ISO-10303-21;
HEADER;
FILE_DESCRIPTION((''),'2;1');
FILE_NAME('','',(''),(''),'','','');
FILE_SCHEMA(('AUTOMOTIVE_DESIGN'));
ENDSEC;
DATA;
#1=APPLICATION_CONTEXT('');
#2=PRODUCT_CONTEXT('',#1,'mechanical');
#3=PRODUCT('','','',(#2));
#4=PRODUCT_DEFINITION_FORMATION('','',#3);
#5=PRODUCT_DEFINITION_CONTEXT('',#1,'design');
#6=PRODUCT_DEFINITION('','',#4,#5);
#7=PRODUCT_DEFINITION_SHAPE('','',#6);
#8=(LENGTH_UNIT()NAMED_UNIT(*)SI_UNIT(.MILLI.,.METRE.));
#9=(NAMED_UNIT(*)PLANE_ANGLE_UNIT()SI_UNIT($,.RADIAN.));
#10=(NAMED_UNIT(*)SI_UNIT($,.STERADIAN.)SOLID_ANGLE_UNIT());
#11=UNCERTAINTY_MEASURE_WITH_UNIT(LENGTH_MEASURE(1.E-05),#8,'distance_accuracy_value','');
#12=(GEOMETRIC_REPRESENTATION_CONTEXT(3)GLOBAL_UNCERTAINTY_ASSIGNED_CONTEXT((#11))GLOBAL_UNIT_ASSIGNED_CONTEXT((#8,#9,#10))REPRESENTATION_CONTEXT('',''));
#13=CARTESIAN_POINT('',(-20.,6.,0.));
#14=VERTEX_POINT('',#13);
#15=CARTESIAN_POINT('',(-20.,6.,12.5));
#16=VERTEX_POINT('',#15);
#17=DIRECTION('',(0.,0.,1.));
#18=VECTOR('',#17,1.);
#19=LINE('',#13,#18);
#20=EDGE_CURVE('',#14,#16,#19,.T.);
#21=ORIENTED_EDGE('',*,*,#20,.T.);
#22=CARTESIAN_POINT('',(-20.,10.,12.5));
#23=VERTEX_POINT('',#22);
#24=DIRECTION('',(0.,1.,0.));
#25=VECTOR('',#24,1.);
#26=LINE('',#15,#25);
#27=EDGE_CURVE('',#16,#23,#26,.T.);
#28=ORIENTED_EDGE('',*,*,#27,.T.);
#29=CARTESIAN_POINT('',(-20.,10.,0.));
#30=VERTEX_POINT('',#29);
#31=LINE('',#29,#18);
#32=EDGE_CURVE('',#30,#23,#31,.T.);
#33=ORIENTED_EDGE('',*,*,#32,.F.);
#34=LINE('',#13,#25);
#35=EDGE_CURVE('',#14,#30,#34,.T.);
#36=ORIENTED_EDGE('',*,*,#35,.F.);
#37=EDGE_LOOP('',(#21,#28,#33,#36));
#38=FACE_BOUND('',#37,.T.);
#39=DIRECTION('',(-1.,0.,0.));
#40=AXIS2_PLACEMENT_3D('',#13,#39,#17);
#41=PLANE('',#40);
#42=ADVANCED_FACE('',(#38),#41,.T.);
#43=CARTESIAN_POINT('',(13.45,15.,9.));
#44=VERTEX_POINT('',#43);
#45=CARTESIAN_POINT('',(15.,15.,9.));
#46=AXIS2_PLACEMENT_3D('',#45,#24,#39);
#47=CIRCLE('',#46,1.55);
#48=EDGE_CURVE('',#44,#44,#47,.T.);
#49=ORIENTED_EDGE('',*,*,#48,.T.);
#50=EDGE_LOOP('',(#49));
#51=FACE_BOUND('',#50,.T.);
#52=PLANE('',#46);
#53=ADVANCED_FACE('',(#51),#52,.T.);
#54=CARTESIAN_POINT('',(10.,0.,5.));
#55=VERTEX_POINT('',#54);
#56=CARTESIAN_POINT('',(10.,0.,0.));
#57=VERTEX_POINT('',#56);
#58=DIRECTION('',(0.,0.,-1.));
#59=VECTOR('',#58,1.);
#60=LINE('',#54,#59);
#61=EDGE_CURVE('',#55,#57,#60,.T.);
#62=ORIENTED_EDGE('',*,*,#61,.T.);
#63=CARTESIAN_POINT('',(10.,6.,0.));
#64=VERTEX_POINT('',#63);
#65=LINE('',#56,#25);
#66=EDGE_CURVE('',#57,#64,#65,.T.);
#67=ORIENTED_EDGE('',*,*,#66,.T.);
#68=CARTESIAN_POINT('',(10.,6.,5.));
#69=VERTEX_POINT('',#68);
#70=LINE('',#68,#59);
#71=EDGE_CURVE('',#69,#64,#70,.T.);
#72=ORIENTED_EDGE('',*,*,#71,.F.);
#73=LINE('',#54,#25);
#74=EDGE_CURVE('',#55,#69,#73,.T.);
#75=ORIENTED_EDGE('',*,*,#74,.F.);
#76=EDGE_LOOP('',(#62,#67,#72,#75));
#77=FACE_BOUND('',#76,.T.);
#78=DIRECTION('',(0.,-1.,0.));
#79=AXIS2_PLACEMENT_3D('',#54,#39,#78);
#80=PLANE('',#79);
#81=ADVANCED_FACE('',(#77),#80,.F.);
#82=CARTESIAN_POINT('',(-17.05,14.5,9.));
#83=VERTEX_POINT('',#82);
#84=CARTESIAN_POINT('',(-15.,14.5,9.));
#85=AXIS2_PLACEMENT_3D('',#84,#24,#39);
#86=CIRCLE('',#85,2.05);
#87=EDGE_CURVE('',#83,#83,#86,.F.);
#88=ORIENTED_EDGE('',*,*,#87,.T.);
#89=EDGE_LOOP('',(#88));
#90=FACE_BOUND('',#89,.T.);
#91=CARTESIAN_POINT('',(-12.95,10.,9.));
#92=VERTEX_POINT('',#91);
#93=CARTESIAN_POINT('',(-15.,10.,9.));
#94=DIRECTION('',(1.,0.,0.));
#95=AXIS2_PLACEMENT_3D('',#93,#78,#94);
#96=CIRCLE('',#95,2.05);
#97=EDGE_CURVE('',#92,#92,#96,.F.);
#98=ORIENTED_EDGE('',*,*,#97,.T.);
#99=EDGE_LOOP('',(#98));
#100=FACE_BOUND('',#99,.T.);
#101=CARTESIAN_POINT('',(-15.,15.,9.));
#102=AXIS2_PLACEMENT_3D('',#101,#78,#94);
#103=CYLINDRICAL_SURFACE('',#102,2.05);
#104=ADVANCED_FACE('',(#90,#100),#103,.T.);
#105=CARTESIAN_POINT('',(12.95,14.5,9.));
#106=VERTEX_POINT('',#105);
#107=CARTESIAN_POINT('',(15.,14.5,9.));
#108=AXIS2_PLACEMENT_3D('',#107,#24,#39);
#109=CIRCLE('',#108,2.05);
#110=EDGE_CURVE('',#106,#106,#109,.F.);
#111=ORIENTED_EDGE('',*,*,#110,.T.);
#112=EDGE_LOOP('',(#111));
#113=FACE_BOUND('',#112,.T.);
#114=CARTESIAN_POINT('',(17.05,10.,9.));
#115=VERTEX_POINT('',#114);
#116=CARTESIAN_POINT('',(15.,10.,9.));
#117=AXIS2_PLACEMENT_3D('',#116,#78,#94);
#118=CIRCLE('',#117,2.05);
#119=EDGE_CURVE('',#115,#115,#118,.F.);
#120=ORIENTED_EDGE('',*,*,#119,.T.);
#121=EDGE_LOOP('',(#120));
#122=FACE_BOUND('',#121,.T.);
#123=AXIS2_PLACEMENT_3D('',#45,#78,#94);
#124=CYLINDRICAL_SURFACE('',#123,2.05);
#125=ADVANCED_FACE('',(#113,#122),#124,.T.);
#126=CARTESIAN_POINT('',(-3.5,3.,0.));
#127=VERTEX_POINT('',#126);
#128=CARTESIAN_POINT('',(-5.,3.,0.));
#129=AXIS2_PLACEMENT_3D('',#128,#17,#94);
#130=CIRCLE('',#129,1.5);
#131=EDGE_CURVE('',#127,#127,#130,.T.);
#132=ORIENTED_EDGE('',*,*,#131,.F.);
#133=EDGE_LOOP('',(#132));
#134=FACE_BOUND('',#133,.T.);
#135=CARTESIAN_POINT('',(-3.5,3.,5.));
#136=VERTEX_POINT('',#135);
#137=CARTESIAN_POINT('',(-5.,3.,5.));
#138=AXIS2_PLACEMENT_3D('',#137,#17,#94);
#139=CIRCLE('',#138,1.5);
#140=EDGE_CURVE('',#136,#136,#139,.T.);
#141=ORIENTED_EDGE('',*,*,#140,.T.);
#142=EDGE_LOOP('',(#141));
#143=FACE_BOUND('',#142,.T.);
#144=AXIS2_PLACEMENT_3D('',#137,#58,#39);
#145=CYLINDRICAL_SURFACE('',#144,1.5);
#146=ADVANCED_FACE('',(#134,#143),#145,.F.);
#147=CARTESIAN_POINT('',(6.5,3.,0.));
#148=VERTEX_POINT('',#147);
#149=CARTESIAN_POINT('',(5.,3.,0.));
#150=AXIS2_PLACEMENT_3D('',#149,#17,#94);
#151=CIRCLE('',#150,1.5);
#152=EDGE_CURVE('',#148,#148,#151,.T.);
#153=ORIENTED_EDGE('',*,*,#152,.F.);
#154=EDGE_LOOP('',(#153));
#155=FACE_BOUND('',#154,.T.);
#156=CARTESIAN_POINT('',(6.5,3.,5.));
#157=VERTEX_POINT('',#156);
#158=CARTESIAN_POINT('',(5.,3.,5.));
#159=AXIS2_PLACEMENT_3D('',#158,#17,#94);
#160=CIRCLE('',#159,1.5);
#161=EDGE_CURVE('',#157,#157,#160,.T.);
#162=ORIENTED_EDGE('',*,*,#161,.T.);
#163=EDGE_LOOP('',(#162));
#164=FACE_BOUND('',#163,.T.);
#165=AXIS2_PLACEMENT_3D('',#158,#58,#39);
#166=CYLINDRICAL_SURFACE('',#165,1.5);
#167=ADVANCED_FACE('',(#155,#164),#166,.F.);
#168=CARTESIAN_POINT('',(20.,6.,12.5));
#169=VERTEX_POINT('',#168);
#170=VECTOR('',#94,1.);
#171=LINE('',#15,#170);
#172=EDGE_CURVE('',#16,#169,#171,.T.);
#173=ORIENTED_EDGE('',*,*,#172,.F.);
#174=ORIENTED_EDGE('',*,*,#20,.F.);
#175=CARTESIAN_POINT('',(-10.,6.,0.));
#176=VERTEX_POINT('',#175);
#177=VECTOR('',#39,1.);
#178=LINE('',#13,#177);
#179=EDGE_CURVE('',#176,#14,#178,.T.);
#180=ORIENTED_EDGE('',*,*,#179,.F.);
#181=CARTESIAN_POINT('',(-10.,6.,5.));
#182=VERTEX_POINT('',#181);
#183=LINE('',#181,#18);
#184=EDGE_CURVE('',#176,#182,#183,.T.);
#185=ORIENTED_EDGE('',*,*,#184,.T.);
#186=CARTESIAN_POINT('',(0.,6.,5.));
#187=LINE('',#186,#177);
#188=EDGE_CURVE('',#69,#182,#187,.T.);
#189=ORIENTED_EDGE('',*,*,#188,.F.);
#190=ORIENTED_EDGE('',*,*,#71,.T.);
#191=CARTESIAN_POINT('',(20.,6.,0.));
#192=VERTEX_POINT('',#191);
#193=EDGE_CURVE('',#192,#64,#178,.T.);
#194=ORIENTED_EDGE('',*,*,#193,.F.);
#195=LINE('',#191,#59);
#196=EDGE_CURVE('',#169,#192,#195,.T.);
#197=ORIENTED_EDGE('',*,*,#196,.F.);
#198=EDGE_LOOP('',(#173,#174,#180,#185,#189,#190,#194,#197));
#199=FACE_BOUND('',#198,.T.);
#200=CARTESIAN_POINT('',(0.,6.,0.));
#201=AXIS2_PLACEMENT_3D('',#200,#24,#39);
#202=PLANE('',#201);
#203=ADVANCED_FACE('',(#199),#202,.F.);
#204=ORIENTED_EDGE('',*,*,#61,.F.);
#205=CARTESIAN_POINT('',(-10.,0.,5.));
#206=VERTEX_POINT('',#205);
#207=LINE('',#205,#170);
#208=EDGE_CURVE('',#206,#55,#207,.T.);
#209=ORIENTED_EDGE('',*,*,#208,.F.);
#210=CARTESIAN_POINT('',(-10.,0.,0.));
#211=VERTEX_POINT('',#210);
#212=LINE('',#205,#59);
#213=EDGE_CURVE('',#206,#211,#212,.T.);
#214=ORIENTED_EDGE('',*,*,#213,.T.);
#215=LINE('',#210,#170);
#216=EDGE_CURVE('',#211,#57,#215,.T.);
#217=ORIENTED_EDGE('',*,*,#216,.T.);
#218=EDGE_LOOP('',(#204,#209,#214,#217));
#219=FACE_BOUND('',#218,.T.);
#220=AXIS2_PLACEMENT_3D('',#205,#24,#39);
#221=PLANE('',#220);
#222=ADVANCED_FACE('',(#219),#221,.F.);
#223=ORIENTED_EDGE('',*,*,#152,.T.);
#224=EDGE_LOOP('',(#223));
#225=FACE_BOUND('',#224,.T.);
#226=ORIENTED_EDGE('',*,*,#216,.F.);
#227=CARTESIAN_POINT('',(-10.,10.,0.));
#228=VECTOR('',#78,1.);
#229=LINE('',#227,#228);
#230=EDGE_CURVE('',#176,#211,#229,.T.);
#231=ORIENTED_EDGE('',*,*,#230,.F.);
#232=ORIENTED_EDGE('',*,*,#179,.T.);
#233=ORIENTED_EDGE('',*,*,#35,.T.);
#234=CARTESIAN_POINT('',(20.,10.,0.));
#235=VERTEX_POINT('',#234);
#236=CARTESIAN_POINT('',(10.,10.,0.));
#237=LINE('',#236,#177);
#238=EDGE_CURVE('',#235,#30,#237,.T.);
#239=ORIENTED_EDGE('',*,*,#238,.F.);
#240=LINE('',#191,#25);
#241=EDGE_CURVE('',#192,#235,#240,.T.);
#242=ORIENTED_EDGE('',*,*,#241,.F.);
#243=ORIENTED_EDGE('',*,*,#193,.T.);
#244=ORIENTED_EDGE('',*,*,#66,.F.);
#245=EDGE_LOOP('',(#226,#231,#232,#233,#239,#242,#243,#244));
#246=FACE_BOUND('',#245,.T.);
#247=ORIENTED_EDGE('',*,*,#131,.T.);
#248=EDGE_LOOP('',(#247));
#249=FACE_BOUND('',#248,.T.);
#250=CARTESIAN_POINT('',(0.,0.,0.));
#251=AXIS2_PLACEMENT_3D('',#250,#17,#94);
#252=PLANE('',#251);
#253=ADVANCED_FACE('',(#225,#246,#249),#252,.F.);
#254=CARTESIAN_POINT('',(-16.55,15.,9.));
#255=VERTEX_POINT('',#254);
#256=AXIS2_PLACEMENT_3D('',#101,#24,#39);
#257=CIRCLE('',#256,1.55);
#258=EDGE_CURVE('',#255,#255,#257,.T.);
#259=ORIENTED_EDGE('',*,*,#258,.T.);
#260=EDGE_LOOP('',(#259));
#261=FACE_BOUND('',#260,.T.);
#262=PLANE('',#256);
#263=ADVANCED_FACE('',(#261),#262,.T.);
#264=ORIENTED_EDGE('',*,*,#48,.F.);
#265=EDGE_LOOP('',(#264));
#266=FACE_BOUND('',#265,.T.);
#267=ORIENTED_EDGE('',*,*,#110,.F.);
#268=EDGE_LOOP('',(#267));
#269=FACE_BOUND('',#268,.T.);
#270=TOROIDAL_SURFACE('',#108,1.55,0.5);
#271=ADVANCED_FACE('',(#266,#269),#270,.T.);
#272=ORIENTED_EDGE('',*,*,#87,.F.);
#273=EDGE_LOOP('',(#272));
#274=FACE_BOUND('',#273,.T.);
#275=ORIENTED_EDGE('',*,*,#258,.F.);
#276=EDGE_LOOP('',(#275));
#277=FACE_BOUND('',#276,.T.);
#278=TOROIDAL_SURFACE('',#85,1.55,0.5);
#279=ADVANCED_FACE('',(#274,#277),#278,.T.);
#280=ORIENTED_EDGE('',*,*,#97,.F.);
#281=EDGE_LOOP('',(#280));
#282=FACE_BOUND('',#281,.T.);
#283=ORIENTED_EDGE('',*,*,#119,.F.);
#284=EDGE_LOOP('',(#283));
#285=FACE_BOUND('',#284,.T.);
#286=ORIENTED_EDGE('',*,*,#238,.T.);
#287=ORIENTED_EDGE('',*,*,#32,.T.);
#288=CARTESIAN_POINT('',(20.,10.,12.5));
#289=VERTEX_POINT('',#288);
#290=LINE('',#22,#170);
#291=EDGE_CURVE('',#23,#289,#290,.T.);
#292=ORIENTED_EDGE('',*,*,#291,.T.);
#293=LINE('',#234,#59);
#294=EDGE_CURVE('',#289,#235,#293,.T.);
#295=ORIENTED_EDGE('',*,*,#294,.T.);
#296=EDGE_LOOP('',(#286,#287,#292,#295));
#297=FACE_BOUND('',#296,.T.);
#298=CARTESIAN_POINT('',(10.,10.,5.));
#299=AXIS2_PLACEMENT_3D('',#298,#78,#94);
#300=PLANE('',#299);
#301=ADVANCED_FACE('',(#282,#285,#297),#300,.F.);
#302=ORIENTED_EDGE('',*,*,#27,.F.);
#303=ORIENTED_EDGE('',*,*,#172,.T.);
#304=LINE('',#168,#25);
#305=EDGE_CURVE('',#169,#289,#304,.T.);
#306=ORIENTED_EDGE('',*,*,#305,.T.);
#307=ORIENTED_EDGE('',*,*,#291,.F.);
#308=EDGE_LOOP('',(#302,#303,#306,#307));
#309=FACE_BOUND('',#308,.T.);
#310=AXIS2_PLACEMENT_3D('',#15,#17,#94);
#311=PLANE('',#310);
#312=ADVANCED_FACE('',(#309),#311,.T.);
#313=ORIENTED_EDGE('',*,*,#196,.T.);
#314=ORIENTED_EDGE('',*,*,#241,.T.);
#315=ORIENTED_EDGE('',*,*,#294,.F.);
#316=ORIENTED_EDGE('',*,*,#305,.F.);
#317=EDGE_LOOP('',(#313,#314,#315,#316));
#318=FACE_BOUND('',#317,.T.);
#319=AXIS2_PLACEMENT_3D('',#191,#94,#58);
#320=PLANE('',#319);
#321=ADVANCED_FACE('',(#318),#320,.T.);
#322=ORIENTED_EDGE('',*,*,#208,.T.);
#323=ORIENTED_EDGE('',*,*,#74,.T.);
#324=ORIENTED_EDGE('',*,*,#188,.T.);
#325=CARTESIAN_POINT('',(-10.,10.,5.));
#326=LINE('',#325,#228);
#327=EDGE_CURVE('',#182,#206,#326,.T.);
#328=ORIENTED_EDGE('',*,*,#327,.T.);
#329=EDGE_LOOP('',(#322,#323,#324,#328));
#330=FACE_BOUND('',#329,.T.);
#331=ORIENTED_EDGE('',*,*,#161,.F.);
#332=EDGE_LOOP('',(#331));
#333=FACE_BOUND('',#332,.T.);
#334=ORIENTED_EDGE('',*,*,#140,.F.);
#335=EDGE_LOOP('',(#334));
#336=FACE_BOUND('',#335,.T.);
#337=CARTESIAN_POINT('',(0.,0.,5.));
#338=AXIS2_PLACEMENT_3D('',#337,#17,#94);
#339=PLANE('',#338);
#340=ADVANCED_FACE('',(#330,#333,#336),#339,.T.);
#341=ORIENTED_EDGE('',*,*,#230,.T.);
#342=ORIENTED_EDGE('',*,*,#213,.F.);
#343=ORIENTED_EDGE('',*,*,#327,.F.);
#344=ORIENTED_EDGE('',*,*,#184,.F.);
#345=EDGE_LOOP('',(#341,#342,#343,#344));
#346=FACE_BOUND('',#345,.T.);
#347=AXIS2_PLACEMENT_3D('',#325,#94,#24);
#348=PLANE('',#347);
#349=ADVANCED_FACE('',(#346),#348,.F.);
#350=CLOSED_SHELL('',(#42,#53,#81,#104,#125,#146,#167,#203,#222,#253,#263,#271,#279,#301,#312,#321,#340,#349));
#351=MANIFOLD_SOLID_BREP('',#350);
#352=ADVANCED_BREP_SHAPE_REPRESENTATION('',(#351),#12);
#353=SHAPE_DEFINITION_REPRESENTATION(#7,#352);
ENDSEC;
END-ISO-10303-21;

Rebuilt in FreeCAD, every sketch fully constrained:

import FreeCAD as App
import Part
import Sketcher

V = App.Vector


def edges_at(feature, points):
    """Names of the edges that pass closest to the given points."""
    edges = feature.Shape.Edges
    near = lambda p: min(range(len(edges)), key=lambda i: edges[i].distToShape(Part.Vertex(*p))[0])
    return sorted({f"Edge{near(p) + 1}" for p in points})


def add_polygon(sketch, points):
    """Adds a closed chain of lines whose ends are joined by coincident constraints."""
    first, n = sketch.GeometryCount, len(points)
    for a, b in zip(points, points[1:] + points[:1]):
        sketch.addGeometry(Part.LineSegment(App.Vector(*a, 0), App.Vector(*b, 0)), False)
    for i in range(n):
        sketch.addConstraint(Sketcher.Constraint("Coincident", first + i, 2, first + (i + 1) % n, 1))

doc = App.newDocument("Part")
body = doc.addObject("PartDesign::Body", "Body")

# Sketch on XY plane
sketch1 = body.newObject("Sketcher::SketchObject", "Sketch")
sketch1.AttachmentSupport = (doc.getObject("XY_Plane"), [""])
sketch1.MapMode = "FlatFace"
add_polygon(sketch1, [(-10, 10), (-10, 0), (10, 0), (10, 10)])  # lines 0-3
sketch1.addGeometry(Part.Circle(V(-5, 3, 0), V(0, 0, 1), 1.5), False)  # 4
sketch1.addGeometry(Part.Circle(V(5, 3, 0), V(0, 0, 1), 1.5), False)  # 5
sketch1.addConstraint([
    Sketcher.Constraint("Vertical", 0),
    Sketcher.Constraint("Horizontal", 1),
    Sketcher.Constraint("Vertical", 2),
    Sketcher.Constraint("Horizontal", 3),
    Sketcher.Constraint("Equal", 4, 5),
    Sketcher.Constraint("Symmetric", 0, 2, 1, 2, -1, 1),
    Sketcher.Constraint("Symmetric", 4, 3, 5, 3, -2),
    Sketcher.Constraint("Diameter", 4, 3.0),
    Sketcher.Constraint("DistanceX", 1, 1, 1, 2, 20.0),
    Sketcher.Constraint("DistanceY", 0, 2, 0, 1, 10.0),
    Sketcher.Constraint("DistanceX", 4, 3, -1, 1, 5.0),
    Sketcher.Constraint("DistanceY", -1, 1, 4, 3, 3.0),
])
pad1 = body.newObject("PartDesign::Pad", "Pad")
pad1.Profile = sketch1
pad1.Length = 5

# Sketch on XZ plane
sketch2 = body.newObject("Sketcher::SketchObject", "Sketch001")
sketch2.AttachmentSupport = (doc.getObject("XZ_Plane"), [""])
sketch2.MapMode = "FlatFace"
sketch2.AttachmentOffset = App.Placement(V(0, 0, -10), App.Rotation())
add_polygon(sketch2, [(-20, 0), (-20, 12), (20, 12), (20, 0)])  # lines 0-3
sketch2.addConstraint([
    Sketcher.Constraint("Vertical", 0),
    Sketcher.Constraint("Horizontal", 1),
    Sketcher.Constraint("Vertical", 2),
    Sketcher.Constraint("Horizontal", 3),
    Sketcher.Constraint("Symmetric", 2, 2, 3, 2, -1, 1),
    Sketcher.Constraint("DistanceX", 1, 1, 1, 2, 40.0),
    Sketcher.Constraint("DistanceY", 0, 1, 0, 2, 12.5),
])
pad2 = body.newObject("PartDesign::Pad", "Pad001")
pad2.Profile = sketch2
pad2.Length = 4

# Sketch on XZ plane
sketch3 = body.newObject("Sketcher::SketchObject", "Sketch002")
sketch3.AttachmentSupport = (doc.getObject("XZ_Plane"), [""])
sketch3.MapMode = "FlatFace"
sketch3.AttachmentOffset = App.Placement(V(0, 0, -10), App.Rotation())
sketch3.addGeometry([
    Part.Circle(V(-15, 9, 0), V(0, 0, 1), 2),
    Part.Circle(V(15, 9, 0), V(0, 0, 1), 2),
], False)
sketch3.addConstraint([
    Sketcher.Constraint("Equal", 0, 1),
    Sketcher.Constraint("Symmetric", 0, 3, 1, 3, -2),
    Sketcher.Constraint("Diameter", 0, 4.1),
    Sketcher.Constraint("DistanceX", 0, 3, -1, 1, 15.0),
    Sketcher.Constraint("DistanceY", -1, 1, 0, 3, 9.0),
])
pad3 = body.newObject("PartDesign::Pad", "Pad002")
pad3.Profile = sketch3
pad3.Length = 5
pad3.Reversed = True
doc.recompute()

fillet = body.newObject("PartDesign::Fillet", "Fillet")
fillet.Base = (pad3, edges_at(pad3, [(-17.05, 15, 9), (12.95, 15, 9)]))
fillet.Radius = 0.5

doc.recompute()
